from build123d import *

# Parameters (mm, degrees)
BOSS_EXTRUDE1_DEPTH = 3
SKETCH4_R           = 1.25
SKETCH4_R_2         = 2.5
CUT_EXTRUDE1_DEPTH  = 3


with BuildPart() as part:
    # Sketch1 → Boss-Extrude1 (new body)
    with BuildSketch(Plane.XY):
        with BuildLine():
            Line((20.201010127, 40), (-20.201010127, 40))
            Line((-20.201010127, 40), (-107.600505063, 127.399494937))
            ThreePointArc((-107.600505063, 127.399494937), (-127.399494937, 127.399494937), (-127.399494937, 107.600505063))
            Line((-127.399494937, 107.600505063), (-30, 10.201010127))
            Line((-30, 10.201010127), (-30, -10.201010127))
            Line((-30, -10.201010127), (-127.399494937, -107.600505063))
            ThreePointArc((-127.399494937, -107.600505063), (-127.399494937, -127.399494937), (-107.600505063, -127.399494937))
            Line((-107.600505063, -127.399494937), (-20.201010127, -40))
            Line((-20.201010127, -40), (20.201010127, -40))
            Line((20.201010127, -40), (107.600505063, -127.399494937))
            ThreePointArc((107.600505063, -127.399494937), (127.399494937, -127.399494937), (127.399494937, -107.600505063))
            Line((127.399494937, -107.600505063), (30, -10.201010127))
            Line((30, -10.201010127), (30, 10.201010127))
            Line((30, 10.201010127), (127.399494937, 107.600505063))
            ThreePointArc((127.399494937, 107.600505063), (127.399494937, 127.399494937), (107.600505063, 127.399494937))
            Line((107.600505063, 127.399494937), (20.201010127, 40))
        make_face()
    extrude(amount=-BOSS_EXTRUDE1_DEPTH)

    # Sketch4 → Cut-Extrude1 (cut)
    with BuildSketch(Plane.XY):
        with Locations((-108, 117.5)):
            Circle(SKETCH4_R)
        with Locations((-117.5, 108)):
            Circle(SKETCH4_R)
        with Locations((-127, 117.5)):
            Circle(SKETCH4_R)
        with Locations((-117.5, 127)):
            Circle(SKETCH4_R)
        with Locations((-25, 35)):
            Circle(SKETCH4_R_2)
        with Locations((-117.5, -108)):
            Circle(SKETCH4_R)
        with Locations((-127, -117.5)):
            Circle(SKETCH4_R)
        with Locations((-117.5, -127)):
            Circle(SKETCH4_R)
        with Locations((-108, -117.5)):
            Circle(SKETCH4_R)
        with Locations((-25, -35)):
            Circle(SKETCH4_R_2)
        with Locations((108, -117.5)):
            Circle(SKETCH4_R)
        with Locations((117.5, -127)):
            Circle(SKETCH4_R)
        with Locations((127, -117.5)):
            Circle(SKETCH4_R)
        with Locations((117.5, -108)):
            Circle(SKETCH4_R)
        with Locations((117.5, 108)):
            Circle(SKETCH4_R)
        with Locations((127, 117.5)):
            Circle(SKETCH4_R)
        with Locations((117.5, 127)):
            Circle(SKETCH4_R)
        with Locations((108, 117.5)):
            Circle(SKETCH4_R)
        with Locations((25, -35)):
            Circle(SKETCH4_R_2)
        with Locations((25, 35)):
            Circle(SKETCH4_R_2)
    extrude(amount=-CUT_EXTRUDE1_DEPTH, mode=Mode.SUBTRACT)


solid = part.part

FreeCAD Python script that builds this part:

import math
import FreeCAD as App
import Part
import Sketcher
from FreeCAD import Vector
Q = App.Units.Quantity

doc = App.newDocument("Part")
body = doc.addObject("PartDesign::Body", "Body")

# Sketch on XY plane
sketch1 = body.newObject("Sketcher::SketchObject", "Sketch")
sketch1.AttachmentSupport = (doc.getObject("XY_Plane"), [""])
sketch1.MapMode = "FlatFace"
sketch1.addGeometry(Part.LineSegment(Vector(20, 40, 0), Vector(-20, 40, 0)), False)
sketch1.addGeometry(Part.LineSegment(Vector(-20, 40, 0), Vector(-108, 127, 0)), False)
sketch1.addGeometry(Part.ArcOfCircle(Part.Circle(Vector(-118, 118, 0), Vector(0, 0, 1), 14), math.radians(45), math.radians(225)), False)
sketch1.addGeometry(Part.LineSegment(Vector(-127, 108, 0), Vector(-30, 10, 0)), False)
sketch1.addGeometry(Part.LineSegment(Vector(-30, 10, 0), Vector(-30, -10, 0)), False)
sketch1.addGeometry(Part.LineSegment(Vector(-30, -10, 0), Vector(-127, -108, 0)), False)
sketch1.addGeometry(Part.ArcOfCircle(Part.Circle(Vector(-118, -118, 0), Vector(0, 0, 1), 14), math.radians(135), math.radians(315)), False)
sketch1.addGeometry(Part.LineSegment(Vector(-108, -127, 0), Vector(-20, -40, 0)), False)
sketch1.addGeometry(Part.LineSegment(Vector(-20, -40, 0), Vector(20, -40, 0)), False)
sketch1.addGeometry(Part.LineSegment(Vector(20, -40, 0), Vector(108, -127, 0)), False)
sketch1.addGeometry(Part.ArcOfCircle(Part.Circle(Vector(118, -118, 0), Vector(0, 0, 1), 14), math.radians(-135), math.radians(45)), False)
sketch1.addGeometry(Part.LineSegment(Vector(127, -108, 0), Vector(30, -10, 0)), False)
sketch1.addGeometry(Part.LineSegment(Vector(30, -10, 0), Vector(30, 10, 0)), False)
sketch1.addGeometry(Part.LineSegment(Vector(30, 10, 0), Vector(127, 108, 0)), False)
sketch1.addGeometry(Part.ArcOfCircle(Part.Circle(Vector(118, 118, 0), Vector(0, 0, 1), 14), math.radians(-45), math.radians(135)), False)
sketch1.addGeometry(Part.LineSegment(Vector(108, 127, 0), Vector(20, 40, 0)), False)
sketch1.addConstraint(Sketcher.Constraint("Coincident", 0, 2, 1, 1))
sketch1.addConstraint(Sketcher.Constraint("Tangent", 1, 2, 2, 1))
sketch1.addConstraint(Sketcher.Constraint("Tangent", 2, 2, 3, 1))
sketch1.addConstraint(Sketcher.Constraint("Coincident", 3, 2, 4, 1))
sketch1.addConstraint(Sketcher.Constraint("Coincident", 4, 2, 5, 1))
sketch1.addConstraint(Sketcher.Constraint("Tangent", 5, 2, 6, 1))
sketch1.addConstraint(Sketcher.Constraint("Tangent", 6, 2, 7, 1))
sketch1.addConstraint(Sketcher.Constraint("Coincident", 7, 2, 8, 1))
sketch1.addConstraint(Sketcher.Constraint("Coincident", 8, 2, 9, 1))
sketch1.addConstraint(Sketcher.Constraint("Tangent", 9, 2, 10, 1))
sketch1.addConstraint(Sketcher.Constraint("Tangent", 10, 2, 11, 1))
sketch1.addConstraint(Sketcher.Constraint("Coincident", 11, 2, 12, 1))
sketch1.addConstraint(Sketcher.Constraint("Coincident", 12, 2, 13, 1))
sketch1.addConstraint(Sketcher.Constraint("Tangent", 13, 2, 14, 1))
sketch1.addConstraint(Sketcher.Constraint("Tangent", 14, 2, 15, 1))
sketch1.addConstraint(Sketcher.Constraint("Coincident", 15, 2, 0, 1))
sketch1.addConstraint(Sketcher.Constraint("Horizontal", 0))
sketch1.addConstraint(Sketcher.Constraint("Vertical", 4))
sketch1.addConstraint(Sketcher.Constraint("Horizontal", 8))
sketch1.addConstraint(Sketcher.Constraint("Vertical", 12))
sketch1.addConstraint(Sketcher.Constraint("Equal", 2, 6))
sketch1.addConstraint(Sketcher.Constraint("Equal", 6, 10))
sketch1.addConstraint(Sketcher.Constraint("Equal", 10, 14))
sketch1.addConstraint(Sketcher.Constraint("Symmetric", 2, 3, 10, 3, -1, 1))
sketch1.addConstraint(Sketcher.Constraint("Symmetric", 6, 3, 14, 3, -1, 1))
sketch1.addConstraint(Sketcher.Constraint("Symmetric", 0, 2, 8, 2, -1, 1))
sketch1.addConstraint(Sketcher.Constraint("Symmetric", 3, 2, 11, 2, -1, 1))
sketch1.addConstraint(Sketcher.Constraint("Symmetric", 6, 3, 10, 3, -2))
sketch1.addConstraint(Sketcher.Constraint("Parallel", 1, 3))
sketch1.addConstraint(Sketcher.Constraint("Perpendicular", 3, 5))
sketch1.addConstraint(Sketcher.Constraint("Parallel", 5, 7))
sketch1.addConstraint(Sketcher.Constraint("Perpendicular", 11, 13))
sketch1.addConstraint(Sketcher.Constraint("Parallel", 13, 15))
sketch1.addConstraint(Sketcher.Constraint("Horizontal", 6, 2, 9, 2))
sketch1.addConstraint(Sketcher.Constraint("Radius", 2, Q("14 mm")))
sketch1.addConstraint(Sketcher.Constraint("DistanceY", -1, 1, 0, 2, Q("40 mm")))
sketch1.addConstraint(Sketcher.Constraint("DistanceX", 3, 2, -1, 1, Q("30 mm")))
sketch1.addConstraint(Sketcher.Constraint("DistanceY", 6, 3, 2, 3, Q("235 mm")))
sketch1.addConstraint(Sketcher.Constraint("DistanceX", 6, 3, 10, 3, Q("235 mm")))
pad1 = body.newObject("PartDesign::Pad", "Pad")
pad1.Profile = sketch1
pad1.Length = 3
pad1.Reversed = True

# Sketch on XY plane
sketch2 = body.newObject("Sketcher::SketchObject", "Sketch001")
sketch2.AttachmentSupport = (doc.getObject("XY_Plane"), [""])
sketch2.MapMode = "FlatFace"
sketch2.addGeometry(Part.Circle(Vector(-108, 117.5, 0), Vector(0, 0, 1), 1.2), False)
sketch2.addGeometry(Part.Circle(Vector(-117.5, 108, 0), Vector(0, 0, 1), 1.2), False)
sketch2.addGeometry(Part.Circle(Vector(-127, 117.5, 0), Vector(0, 0, 1), 1.2), False)
sketch2.addGeometry(Part.Circle(Vector(-117.5, 127, 0), Vector(0, 0, 1), 1.2), False)
sketch2.addGeometry(Part.Circle(Vector(-25, 35, 0), Vector(0, 0, 1), 2.5), False)
sketch2.addGeometry(Part.Circle(Vector(-117.5, -108, 0), Vector(0, 0, 1), 1.2), False)
sketch2.addGeometry(Part.Circle(Vector(-127, -117.5, 0), Vector(0, 0, 1), 1.2), False)
sketch2.addGeometry(Part.Circle(Vector(-117.5, -127, 0), Vector(0, 0, 1), 1.2), False)
sketch2.addGeometry(Part.Circle(Vector(-108, -117.5, 0), Vector(0, 0, 1), 1.2), False)
sketch2.addGeometry(Part.Circle(Vector(-25, -35, 0), Vector(0, 0, 1), 2.5), False)
sketch2.addGeometry(Part.Circle(Vector(108, -117.5, 0), Vector(0, 0, 1), 1.2), False)
sketch2.addGeometry(Part.Circle(Vector(117.5, -127, 0), Vector(0, 0, 1), 1.2), False)
sketch2.addGeometry(Part.Circle(Vector(127, -117.5, 0), Vector(0, 0, 1), 1.2), False)
sketch2.addGeometry(Part.Circle(Vector(117.5, -108, 0), Vector(0, 0, 1), 1.2), False)
sketch2.addGeometry(Part.Circle(Vector(117.5, 108, 0), Vector(0, 0, 1), 1.2), False)
sketch2.addGeometry(Part.Circle(Vector(127, 117.5, 0), Vector(0, 0, 1), 1.2), False)
sketch2.addGeometry(Part.Circle(Vector(117.5, 127, 0), Vector(0, 0, 1), 1.2), False)
sketch2.addGeometry(Part.Circle(Vector(108, 117.5, 0), Vector(0, 0, 1), 1.2), False)
sketch2.addGeometry(Part.Circle(Vector(25, -35, 0), Vector(0, 0, 1), 2.5), False)
sketch2.addGeometry(Part.Circle(Vector(25, 35, 0), Vector(0, 0, 1), 2.5), False)
sketch2.addConstraint(Sketcher.Constraint("Equal", 0, 1))
sketch2.addConstraint(Sketcher.Constraint("Equal", 1, 2))
sketch2.addConstraint(Sketcher.Constraint("Equal", 2, 3))
sketch2.addConstraint(Sketcher.Constraint("Equal", 3, 5))
sketch2.addConstraint(Sketcher.Constraint("Equal", 5, 6))
sketch2.addConstraint(Sketcher.Constraint("Equal", 6, 7))
sketch2.addConstraint(Sketcher.Constraint("Equal", 7, 8))
sketch2.addConstraint(Sketcher.Constraint("Equal", 4, 9))
sketch2.addConstraint(Sketcher.Constraint("Equal", 8, 10))
sketch2.addConstraint(Sketcher.Constraint("Equal", 10, 11))
sketch2.addConstraint(Sketcher.Constraint("Equal", 11, 12))
sketch2.addConstraint(Sketcher.Constraint("Equal", 12, 13))
sketch2.addConstraint(Sketcher.Constraint("Equal", 13, 14))
sketch2.addConstraint(Sketcher.Constraint("Equal", 14, 15))
sketch2.addConstraint(Sketcher.Constraint("Equal", 15, 16))
sketch2.addConstraint(Sketcher.Constraint("Equal", 16, 17))
sketch2.addConstraint(Sketcher.Constraint("Equal", 9, 18))
sketch2.addConstraint(Sketcher.Constraint("Equal", 18, 19))
sketch2.addConstraint(Sketcher.Constraint("Symmetric", 0, 3, 10, 3, -1, 1))
sketch2.addConstraint(Sketcher.Constraint("Symmetric", 3, 3, 11, 3, -1, 1))
sketch2.addConstraint(Sketcher.Constraint("Symmetric", 2, 3, 12, 3, -1, 1))
sketch2.addConstraint(Sketcher.Constraint("Symmetric", 1, 3, 13, 3, -1, 1))
sketch2.addConstraint(Sketcher.Constraint("Symmetric", 5, 3, 14, 3, -1, 1))
sketch2.addConstraint(Sketcher.Constraint("Symmetric", 6, 3, 15, 3, -1, 1))
sketch2.addConstraint(Sketcher.Constraint("Symmetric", 7, 3, 16, 3, -1, 1))
sketch2.addConstraint(Sketcher.Constraint("Symmetric", 8, 3, 17, 3, -1, 1))
sketch2.addConstraint(Sketcher.Constraint("Symmetric", 4, 3, 18, 3, -1, 1))
sketch2.addConstraint(Sketcher.Constraint("Symmetric", 9, 3, 19, 3, -1, 1))
sketch2.addConstraint(Sketcher.Constraint("Symmetric", 8, 3, 10, 3, -2))
sketch2.addConstraint(Sketcher.Constraint("Symmetric", 7, 3, 11, 3, -2))
sketch2.addConstraint(Sketcher.Constraint("Symmetric", 6, 3, 12, 3, -2))
sketch2.addConstraint(Sketcher.Constraint("Symmetric", 5, 3, 13, 3, -2))
sketch2.addConstraint(Sketcher.Constraint("Symmetric", 9, 3, 18, 3, -2))
sketch2.addConstraint(Sketcher.Constraint("Horizontal", 0, 3, 2, 3))
sketch2.addConstraint(Sketcher.Constraint("Vertical", 1, 3, 3, 3))
sketch2.addConstraint(Sketcher.Constraint("Diameter", 4, Q("5 mm")))
sketch2.addConstraint(Sketcher.Constraint("Diameter", 0, Q("2.5 mm")))
sketch2.addConstraint(Sketcher.Constraint("DistanceX", 0, 3, -1, 1, Q("108 mm")))
sketch2.addConstraint(Sketcher.Constraint("DistanceY", -1, 1, 1, 3, Q("108 mm")))
sketch2.addConstraint(Sketcher.Constraint("DistanceX", 2, 3, -1, 1, Q("127 mm")))
sketch2.addConstraint(Sketcher.Constraint("DistanceY", -1, 1, 3, 3, Q("127 mm")))
sketch2.addConstraint(Sketcher.Constraint("DistanceX", 4, 3, -1, 1, Q("25 mm")))
sketch2.addConstraint(Sketcher.Constraint("DistanceY", -1, 1, 4, 3, Q("35 mm")))
sketch2.addConstraint(Sketcher.Constraint("DistanceY", 6, 3, 2, 3, Q("235 mm")))
sketch2.addConstraint(Sketcher.Constraint("DistanceX", 7, 3, 11, 3, Q("235 mm")))
pocket1 = body.newObject("PartDesign::Pocket", "Pocket")
pocket1.Profile = sketch2
pocket1.Length = 3

doc.recompute()
